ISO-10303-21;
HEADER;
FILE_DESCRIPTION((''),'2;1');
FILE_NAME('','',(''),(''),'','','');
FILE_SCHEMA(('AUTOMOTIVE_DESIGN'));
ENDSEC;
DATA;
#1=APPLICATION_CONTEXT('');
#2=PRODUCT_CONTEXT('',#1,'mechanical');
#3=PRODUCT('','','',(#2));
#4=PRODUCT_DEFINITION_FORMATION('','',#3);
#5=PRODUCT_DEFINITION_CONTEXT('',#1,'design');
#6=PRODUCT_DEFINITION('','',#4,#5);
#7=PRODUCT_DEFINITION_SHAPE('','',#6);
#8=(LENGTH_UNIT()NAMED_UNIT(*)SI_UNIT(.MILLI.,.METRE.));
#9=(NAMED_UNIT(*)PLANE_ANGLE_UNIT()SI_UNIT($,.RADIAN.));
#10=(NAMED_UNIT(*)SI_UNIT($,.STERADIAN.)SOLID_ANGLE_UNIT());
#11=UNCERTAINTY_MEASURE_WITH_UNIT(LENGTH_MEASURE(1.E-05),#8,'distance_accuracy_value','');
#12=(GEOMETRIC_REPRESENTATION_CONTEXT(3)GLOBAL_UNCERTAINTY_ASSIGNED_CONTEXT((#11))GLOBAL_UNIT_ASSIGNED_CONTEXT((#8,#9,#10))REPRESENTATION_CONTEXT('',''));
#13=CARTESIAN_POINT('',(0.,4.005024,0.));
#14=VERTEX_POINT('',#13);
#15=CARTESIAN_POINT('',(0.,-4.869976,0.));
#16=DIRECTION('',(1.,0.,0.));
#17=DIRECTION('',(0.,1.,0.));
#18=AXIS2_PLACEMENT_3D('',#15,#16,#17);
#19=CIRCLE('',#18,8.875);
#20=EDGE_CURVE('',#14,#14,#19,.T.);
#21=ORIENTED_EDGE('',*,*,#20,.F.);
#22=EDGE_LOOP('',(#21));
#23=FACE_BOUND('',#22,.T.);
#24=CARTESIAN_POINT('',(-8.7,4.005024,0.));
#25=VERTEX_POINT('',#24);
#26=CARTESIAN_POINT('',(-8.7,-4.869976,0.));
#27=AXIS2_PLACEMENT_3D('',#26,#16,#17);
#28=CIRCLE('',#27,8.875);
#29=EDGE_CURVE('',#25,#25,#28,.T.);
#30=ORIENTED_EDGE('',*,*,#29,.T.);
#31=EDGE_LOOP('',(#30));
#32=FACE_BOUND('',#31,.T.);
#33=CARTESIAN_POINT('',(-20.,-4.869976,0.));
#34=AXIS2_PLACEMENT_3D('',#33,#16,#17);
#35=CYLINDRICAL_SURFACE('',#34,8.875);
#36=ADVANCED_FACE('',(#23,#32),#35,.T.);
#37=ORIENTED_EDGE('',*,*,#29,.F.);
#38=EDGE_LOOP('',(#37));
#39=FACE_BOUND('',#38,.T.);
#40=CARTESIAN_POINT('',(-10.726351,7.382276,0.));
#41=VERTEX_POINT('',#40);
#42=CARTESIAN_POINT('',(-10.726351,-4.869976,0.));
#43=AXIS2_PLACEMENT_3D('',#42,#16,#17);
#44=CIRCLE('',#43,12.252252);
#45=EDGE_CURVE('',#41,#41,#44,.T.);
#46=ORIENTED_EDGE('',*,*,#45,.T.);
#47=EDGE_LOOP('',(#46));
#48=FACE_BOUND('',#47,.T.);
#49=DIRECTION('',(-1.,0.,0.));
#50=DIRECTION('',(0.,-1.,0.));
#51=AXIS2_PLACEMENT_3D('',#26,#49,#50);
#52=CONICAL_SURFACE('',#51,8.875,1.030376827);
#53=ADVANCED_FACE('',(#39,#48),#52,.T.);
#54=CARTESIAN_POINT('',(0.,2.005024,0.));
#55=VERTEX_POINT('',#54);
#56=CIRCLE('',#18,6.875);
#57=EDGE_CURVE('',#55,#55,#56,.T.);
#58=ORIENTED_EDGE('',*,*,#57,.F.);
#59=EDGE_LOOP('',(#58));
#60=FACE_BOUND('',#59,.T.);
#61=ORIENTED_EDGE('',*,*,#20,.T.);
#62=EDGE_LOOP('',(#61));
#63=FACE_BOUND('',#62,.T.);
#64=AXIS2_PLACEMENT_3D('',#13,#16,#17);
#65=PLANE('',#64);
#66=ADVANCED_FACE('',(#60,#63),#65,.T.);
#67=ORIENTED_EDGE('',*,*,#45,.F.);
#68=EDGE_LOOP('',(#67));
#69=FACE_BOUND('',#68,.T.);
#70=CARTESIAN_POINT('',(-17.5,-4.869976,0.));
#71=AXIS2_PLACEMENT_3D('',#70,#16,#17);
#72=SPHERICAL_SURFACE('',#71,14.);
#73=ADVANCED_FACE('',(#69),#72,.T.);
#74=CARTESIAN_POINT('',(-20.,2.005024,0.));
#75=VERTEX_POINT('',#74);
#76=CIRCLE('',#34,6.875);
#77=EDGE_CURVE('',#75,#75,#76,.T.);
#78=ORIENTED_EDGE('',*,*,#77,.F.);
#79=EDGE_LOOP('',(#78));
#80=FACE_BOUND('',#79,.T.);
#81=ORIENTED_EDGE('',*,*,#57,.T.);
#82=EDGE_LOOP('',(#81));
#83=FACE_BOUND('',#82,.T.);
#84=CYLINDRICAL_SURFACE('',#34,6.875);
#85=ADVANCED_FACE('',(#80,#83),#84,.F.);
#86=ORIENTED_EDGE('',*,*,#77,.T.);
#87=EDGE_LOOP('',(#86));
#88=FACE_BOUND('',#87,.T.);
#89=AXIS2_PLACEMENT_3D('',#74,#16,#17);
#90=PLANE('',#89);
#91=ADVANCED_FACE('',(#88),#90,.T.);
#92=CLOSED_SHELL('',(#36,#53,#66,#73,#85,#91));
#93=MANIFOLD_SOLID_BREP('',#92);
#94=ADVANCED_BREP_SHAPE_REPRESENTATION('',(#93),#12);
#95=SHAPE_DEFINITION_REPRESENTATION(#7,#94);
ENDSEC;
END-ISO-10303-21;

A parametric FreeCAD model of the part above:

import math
import FreeCAD as App
import Part
import Sketcher

V = App.Vector

doc = App.newDocument("Part")
body = doc.addObject("PartDesign::Body", "Body")

sketch1 = body.newObject("Sketcher::SketchObject", "Sketch")
sketch1.AttachmentSupport = (doc.getObject("XY_Plane"), [""])
sketch1.MapMode = "FlatFace"
sketch1.addGeometry(Part.LineSegment(V(0, 2, 0), V(0, 4, 0)), False)
sketch1.addGeometry(Part.LineSegment(V(0, 4, 0), V(-8.7, 4, 0)), False)
sketch1.addGeometry(Part.LineSegment(V(-8.7, 4, 0), V(-10.7, 7.4, 0)), False)
sketch1.addGeometry(Part.ArcOfCircle(Part.Circle(V(-17.5, -4.9, 0), V(0, 0, 1), 14), math.radians(61), math.radians(180)), False)
sketch1.addGeometry(Part.LineSegment(V(-31.5, -4.9, 0), V(-20, -4.9, 0)), False)
sketch1.addGeometry(Part.LineSegment(V(-20, -4.9, 0), V(-20, 2, 0)), False)
sketch1.addGeometry(Part.LineSegment(V(-20, 2, 0), V(0, 2, 0)), False)
sketch1.addGeometry(Part.LineSegment(V(0, -4.9, 0), V(-31.5, -4.9, 0)), True)
sketch1.addConstraint(Sketcher.Constraint("Coincident", 0, 2, 1, 1))
sketch1.addConstraint(Sketcher.Constraint("Coincident", 1, 2, 2, 1))
sketch1.addConstraint(Sketcher.Constraint("Coincident", 2, 2, 3, 1))
sketch1.addConstraint(Sketcher.Constraint("Coincident", 3, 2, 4, 1))
sketch1.addConstraint(Sketcher.Constraint("Coincident", 4, 2, 5, 1))
sketch1.addConstraint(Sketcher.Constraint("Coincident", 5, 2, 6, 1))
sketch1.addConstraint(Sketcher.Constraint("Coincident", 6, 2, 0, 1))
sketch1.addConstraint(Sketcher.Constraint("Vertical", 0))
sketch1.addConstraint(Sketcher.Constraint("Horizontal", 1))
sketch1.addConstraint(Sketcher.Constraint("Horizontal", 4))
sketch1.addConstraint(Sketcher.Constraint("Vertical", 5))
sketch1.addConstraint(Sketcher.Constraint("Horizontal", 6))
sketch1.addConstraint(Sketcher.Constraint("Horizontal", 7))
sketch1.addConstraint(Sketcher.Constraint("Coincident", 7, 2, 3, 2))
sketch1.addConstraint(Sketcher.Constraint("PointOnObject", 0, 2, -2))
sketch1.addConstraint(Sketcher.Constraint("PointOnObject", 7, 1, -2))
sketch1.addConstraint(Sketcher.Constraint("Radius", 3, 14.0))
sketch1.addConstraint(Sketcher.Constraint("DistanceX", 6, 1, 6, 2, 20.0))
sketch1.addConstraint(Sketcher.Constraint("DistanceY", 0, 1, 0, 2, 2.0))
sketch1.addConstraint(Sketcher.Constraint("DistanceX", 1, 2, 1, 1, 8.7))
sketch1.addConstraint(Sketcher.Constraint("DistanceX", 4, 1, 4, 2, 11.5))
sketch1.addConstraint(Sketcher.Constraint("DistanceY", 5, 1, 5, 2, 6.875))
sketch1.addConstraint(Sketcher.Constraint("DistanceY", 3, 3, 0, 2, 8.875))
sketch1.addConstraint(Sketcher.Constraint("Distance", 2, 3.938519))
sketch1.addConstraint(Sketcher.Constraint("DistanceY", 3, 3, -1, 1, 4.869976))
revolution = body.newObject("PartDesign::Revolution", "Revolution")
revolution.Profile = sketch1
revolution.ReferenceAxis = (sketch1, ["Axis0"])
revolution.Angle = 360

doc.recompute()
